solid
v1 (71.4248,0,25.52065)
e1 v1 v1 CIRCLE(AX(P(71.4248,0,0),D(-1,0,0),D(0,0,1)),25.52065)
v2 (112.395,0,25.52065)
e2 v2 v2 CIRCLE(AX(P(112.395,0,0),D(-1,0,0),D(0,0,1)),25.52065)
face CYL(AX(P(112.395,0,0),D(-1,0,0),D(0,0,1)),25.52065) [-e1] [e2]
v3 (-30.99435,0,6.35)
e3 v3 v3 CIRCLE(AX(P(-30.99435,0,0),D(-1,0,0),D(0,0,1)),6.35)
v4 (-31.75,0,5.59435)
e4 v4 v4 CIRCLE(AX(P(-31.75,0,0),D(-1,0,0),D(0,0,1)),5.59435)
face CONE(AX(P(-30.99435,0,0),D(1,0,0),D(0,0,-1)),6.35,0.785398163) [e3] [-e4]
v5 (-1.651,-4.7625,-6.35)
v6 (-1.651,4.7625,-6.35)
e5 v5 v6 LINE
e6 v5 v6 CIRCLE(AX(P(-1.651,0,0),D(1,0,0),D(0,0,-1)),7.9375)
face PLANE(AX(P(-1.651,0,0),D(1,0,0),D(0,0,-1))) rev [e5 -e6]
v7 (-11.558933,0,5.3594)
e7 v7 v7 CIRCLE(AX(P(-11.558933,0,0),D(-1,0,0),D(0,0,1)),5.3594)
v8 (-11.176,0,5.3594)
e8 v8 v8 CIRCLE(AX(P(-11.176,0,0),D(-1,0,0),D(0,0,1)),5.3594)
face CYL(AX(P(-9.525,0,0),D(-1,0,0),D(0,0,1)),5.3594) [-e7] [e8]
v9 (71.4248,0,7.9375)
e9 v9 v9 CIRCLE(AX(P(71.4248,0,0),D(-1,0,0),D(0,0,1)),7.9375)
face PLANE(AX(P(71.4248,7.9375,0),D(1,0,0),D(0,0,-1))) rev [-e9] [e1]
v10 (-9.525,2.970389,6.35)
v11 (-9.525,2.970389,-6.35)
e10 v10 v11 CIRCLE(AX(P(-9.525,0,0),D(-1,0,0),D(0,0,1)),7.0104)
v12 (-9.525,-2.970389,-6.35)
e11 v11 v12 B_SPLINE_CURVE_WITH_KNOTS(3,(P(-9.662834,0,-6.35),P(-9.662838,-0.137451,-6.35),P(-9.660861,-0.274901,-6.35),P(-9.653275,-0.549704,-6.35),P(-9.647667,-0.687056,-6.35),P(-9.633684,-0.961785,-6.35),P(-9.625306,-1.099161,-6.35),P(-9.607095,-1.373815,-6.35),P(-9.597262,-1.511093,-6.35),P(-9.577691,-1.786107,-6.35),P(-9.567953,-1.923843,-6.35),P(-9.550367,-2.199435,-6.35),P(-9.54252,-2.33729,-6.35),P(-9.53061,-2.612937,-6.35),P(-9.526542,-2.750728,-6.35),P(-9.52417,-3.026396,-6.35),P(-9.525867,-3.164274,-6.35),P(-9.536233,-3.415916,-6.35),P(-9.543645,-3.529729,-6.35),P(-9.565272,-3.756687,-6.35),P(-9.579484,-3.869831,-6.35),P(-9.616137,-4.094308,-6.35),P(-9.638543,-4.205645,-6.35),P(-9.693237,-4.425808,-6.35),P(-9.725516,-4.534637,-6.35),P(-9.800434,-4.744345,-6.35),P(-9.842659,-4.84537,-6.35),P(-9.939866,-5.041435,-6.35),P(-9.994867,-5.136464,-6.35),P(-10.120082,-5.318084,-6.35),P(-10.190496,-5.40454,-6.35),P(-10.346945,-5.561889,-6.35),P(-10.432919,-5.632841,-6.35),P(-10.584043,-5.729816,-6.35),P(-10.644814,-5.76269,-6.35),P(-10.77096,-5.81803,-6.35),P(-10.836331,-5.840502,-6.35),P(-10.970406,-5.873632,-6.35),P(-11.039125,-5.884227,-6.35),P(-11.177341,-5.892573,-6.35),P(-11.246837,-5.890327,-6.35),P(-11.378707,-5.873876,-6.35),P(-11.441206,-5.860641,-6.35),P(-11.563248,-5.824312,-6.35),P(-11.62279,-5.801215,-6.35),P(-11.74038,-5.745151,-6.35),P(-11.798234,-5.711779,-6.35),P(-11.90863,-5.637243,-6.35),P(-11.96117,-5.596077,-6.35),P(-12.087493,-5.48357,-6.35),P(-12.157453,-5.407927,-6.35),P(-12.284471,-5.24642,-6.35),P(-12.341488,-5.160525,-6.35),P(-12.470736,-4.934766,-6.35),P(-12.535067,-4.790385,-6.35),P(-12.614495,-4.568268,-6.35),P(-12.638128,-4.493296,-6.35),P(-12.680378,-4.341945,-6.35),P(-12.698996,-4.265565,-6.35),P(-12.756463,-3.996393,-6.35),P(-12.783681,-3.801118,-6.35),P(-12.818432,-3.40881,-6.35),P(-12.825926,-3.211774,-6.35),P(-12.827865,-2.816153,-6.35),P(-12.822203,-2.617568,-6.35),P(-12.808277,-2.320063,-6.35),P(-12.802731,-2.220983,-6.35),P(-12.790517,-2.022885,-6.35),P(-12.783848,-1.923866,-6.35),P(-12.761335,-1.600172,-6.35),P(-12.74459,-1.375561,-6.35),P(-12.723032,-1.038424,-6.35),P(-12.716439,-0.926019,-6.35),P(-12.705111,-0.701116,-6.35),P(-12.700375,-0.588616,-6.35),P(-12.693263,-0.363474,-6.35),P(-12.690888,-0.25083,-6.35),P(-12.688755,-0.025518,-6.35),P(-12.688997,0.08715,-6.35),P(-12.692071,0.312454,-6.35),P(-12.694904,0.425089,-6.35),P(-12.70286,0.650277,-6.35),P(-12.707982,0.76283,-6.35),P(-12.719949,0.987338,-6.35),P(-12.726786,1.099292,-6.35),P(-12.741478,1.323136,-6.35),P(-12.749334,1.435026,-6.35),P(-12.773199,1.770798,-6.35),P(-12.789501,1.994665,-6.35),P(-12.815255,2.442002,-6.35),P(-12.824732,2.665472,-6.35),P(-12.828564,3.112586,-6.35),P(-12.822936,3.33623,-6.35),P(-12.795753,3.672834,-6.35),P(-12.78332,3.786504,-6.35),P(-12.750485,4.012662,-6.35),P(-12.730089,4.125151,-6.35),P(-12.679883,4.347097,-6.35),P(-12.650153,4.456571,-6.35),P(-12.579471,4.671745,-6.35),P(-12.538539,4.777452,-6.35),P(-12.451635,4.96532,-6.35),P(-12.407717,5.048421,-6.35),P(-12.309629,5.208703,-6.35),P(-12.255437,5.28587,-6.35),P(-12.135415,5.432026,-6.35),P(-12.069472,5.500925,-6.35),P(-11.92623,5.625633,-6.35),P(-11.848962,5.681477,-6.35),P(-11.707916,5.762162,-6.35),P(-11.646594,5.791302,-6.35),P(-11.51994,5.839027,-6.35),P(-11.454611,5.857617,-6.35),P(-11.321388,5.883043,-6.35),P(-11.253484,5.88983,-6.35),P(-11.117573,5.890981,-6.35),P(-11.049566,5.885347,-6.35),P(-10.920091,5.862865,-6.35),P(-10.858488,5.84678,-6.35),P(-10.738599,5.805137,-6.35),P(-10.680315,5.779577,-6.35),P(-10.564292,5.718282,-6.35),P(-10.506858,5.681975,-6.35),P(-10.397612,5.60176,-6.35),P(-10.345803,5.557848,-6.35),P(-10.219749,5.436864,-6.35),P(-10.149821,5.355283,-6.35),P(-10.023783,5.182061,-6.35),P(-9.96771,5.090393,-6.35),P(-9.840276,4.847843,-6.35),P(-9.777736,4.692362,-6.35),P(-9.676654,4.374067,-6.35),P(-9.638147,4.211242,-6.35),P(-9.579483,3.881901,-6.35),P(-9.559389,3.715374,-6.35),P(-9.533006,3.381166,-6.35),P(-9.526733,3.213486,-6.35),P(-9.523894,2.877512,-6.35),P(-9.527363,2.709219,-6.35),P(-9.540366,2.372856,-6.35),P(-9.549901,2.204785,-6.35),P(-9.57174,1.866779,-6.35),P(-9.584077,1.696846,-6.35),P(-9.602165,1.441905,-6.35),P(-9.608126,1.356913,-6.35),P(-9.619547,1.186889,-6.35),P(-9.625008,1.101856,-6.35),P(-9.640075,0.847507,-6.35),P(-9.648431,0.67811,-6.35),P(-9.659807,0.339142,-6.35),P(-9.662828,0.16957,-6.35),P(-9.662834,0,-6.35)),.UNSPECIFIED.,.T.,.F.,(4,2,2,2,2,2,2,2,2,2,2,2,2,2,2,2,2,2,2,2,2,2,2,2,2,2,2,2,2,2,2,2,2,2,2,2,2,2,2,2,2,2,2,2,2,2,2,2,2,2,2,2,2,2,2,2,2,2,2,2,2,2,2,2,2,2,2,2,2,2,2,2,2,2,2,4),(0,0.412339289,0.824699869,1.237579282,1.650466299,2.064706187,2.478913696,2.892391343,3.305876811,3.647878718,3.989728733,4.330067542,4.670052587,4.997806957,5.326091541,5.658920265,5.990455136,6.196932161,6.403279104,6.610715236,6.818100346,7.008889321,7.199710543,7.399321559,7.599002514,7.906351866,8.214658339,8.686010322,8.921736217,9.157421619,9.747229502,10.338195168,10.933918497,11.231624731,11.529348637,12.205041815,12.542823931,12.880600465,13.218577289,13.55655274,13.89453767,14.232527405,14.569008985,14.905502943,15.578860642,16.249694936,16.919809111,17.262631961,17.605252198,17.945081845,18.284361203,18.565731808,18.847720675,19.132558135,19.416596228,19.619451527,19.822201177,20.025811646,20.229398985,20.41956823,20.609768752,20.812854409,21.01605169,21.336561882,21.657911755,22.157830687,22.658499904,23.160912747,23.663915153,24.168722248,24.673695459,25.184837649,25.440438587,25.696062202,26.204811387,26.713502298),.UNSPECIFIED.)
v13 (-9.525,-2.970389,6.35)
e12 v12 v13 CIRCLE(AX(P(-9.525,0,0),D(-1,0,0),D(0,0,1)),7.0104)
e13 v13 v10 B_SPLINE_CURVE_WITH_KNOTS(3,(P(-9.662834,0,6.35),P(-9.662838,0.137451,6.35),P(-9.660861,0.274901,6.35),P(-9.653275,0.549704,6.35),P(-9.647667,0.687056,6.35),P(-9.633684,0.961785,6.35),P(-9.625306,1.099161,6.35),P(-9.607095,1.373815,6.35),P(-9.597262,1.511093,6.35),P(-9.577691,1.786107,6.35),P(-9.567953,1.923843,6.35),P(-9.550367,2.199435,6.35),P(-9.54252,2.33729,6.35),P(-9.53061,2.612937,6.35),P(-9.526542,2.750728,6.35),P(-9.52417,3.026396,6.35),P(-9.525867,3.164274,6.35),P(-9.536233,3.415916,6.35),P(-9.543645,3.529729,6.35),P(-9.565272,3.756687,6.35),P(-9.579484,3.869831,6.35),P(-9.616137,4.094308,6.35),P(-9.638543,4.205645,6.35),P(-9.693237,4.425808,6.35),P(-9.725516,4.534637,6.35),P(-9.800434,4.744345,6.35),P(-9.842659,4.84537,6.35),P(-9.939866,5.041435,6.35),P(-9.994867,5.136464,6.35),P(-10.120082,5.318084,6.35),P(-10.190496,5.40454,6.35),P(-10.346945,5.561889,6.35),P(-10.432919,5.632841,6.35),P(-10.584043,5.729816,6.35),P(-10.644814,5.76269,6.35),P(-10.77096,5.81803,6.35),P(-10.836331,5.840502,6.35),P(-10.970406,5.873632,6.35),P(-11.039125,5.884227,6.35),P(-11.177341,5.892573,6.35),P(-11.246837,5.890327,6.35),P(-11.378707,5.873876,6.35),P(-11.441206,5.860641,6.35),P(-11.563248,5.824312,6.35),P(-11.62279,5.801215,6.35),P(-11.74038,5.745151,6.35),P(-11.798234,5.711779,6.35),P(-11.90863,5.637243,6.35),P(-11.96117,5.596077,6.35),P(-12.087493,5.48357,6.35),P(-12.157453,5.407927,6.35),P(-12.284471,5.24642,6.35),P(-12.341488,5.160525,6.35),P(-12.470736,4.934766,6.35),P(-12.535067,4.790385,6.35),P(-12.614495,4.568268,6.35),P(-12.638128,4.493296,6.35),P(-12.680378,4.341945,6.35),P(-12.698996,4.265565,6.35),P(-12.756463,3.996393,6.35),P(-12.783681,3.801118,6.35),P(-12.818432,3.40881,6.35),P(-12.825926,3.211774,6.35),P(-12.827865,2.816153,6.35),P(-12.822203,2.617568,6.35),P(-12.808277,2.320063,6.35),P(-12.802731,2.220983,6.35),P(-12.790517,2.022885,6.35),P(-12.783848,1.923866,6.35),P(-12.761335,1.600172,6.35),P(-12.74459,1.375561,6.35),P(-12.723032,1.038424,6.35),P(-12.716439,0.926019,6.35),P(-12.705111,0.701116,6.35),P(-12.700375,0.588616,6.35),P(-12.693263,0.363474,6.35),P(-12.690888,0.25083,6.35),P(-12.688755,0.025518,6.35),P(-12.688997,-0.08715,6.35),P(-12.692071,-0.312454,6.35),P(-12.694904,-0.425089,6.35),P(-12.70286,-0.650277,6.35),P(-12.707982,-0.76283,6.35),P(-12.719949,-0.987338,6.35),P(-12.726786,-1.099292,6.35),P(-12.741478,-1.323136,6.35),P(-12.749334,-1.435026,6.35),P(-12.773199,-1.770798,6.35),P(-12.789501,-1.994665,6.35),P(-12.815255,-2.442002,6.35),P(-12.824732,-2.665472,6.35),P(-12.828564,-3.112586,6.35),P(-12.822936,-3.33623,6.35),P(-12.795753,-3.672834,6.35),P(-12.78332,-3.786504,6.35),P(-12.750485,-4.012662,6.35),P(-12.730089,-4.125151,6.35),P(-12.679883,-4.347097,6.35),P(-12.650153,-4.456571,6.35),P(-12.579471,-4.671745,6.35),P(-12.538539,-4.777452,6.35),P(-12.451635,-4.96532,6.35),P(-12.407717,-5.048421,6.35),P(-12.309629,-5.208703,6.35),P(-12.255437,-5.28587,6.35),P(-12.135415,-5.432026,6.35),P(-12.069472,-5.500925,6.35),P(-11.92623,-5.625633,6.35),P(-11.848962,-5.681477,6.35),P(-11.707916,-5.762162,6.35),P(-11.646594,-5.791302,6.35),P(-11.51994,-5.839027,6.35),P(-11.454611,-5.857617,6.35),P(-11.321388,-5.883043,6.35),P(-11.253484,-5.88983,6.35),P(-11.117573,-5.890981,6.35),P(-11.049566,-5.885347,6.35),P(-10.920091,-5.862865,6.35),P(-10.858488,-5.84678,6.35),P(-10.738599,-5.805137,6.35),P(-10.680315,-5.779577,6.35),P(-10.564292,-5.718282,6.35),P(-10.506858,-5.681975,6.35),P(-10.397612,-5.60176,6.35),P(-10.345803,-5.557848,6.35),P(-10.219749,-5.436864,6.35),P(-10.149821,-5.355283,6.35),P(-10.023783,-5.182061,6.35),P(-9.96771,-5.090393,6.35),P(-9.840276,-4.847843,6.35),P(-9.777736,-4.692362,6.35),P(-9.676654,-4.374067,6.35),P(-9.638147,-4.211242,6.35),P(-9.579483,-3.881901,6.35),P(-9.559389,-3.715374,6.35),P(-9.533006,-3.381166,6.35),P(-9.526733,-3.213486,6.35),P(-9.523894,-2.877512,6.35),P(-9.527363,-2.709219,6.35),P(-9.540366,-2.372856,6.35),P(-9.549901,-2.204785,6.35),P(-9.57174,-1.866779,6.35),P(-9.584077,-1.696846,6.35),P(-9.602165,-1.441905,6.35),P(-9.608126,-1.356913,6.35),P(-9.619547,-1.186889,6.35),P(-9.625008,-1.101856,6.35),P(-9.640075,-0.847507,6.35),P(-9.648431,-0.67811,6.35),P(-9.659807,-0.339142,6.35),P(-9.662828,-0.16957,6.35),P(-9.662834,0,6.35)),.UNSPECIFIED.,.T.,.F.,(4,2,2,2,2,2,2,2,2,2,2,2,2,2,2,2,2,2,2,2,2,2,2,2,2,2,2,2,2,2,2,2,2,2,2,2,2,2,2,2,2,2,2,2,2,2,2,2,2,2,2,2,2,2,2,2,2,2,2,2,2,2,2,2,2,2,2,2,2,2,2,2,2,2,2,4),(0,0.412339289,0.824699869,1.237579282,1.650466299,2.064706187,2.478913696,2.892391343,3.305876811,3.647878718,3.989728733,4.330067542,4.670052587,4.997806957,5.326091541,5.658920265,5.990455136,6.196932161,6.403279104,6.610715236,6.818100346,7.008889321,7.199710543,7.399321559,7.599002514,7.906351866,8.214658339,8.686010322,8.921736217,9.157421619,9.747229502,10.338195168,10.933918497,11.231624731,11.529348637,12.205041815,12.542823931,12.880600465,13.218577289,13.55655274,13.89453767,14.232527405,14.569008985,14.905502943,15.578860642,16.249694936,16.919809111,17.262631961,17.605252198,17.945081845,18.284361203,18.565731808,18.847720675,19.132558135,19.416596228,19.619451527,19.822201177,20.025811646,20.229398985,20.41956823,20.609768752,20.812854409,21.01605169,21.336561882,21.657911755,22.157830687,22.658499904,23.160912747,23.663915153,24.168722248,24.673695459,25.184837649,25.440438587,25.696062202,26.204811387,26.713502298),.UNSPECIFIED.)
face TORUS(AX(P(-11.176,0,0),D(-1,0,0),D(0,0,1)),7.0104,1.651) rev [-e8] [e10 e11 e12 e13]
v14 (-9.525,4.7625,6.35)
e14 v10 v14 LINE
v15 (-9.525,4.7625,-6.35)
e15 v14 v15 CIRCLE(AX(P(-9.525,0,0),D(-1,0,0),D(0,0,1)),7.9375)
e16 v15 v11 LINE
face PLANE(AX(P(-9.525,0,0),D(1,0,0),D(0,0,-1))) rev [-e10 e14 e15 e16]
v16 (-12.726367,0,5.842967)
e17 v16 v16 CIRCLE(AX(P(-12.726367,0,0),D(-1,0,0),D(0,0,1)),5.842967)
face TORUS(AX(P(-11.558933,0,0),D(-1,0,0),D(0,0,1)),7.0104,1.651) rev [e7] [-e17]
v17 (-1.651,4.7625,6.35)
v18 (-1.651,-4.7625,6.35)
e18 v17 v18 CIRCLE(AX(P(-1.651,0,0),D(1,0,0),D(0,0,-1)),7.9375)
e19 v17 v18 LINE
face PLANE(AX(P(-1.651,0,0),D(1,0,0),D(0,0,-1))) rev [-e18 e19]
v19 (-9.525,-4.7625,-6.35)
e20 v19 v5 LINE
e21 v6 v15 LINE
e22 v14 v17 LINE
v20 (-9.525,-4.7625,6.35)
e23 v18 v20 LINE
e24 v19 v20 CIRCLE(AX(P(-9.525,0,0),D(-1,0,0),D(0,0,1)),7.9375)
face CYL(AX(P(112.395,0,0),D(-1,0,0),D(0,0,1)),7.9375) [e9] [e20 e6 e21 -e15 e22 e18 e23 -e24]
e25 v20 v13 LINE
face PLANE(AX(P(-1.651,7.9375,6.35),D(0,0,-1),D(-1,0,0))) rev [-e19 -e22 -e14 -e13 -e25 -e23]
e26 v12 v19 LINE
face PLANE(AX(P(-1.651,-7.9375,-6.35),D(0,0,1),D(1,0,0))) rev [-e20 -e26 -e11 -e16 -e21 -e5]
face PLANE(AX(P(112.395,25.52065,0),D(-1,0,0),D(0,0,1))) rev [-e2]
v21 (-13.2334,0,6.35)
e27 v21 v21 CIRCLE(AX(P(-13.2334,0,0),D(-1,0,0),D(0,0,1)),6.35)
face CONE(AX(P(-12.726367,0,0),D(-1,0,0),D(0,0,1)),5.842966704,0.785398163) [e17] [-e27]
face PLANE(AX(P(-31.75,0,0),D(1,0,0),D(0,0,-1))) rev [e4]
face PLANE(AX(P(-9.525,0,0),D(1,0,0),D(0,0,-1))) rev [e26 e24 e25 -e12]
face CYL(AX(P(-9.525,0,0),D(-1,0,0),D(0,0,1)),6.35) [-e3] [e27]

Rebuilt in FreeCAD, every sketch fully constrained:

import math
import FreeCAD as App
import Part
import Sketcher
Q = App.Units.Quantity


def add_polygon(sketch, points):
    """Adds a closed chain of lines whose ends are joined by coincident constraints."""
    first, n = sketch.GeometryCount, len(points)
    for a, b in zip(points, points[1:] + points[:1]):
        sketch.addGeometry(Part.LineSegment(App.Vector(*a, 0), App.Vector(*b, 0)), False)
    for i in range(n):
        sketch.addConstraint(Sketcher.Constraint("Coincident", first + i, 2, first + (i + 1) % n, 1))

doc = App.newDocument("Part")
body = doc.addObject("PartDesign::Body", "Body")

sketch1 = body.newObject("Sketcher::SketchObject", "Sketch")
sketch1.AttachmentSupport = (doc.getObject("XY_Plane"), [""])
sketch1.MapMode = "FlatFace"
add_polygon(sketch1, [(-10, 8), (-10, 0), (112, 0), (112, 26), (71, 26), (71, 8)])
sketch1.addConstraint(Sketcher.Constraint("Vertical", 0))
sketch1.addConstraint(Sketcher.Constraint("Horizontal", 1))
sketch1.addConstraint(Sketcher.Constraint("Vertical", 2))
sketch1.addConstraint(Sketcher.Constraint("Horizontal", 3))
sketch1.addConstraint(Sketcher.Constraint("Vertical", 4))
sketch1.addConstraint(Sketcher.Constraint("Horizontal", 5))
sketch1.addConstraint(Sketcher.Constraint("PointOnObject", 0, 2, -1))
sketch1.addConstraint(Sketcher.Constraint("DistanceX", 1, 1, 1, 2, Q("4.8 in")))
sketch1.addConstraint(Sketcher.Constraint("DistanceX", 3, 2, 3, 1, Q("1.613 in")))
sketch1.addConstraint(Sketcher.Constraint("DistanceY", 0, 2, 0, 1, Q("0.3125 in")))
sketch1.addConstraint(Sketcher.Constraint("DistanceX", 0, 2, -1, 1, Q("0.375 in")))
sketch1.addConstraint(Sketcher.Constraint("DistanceY", 2, 1, 2, 2, Q("25.52065 mm")))
revolution = body.newObject("PartDesign::Revolution", "Revolution")
revolution.Profile = sketch1
revolution.ReferenceAxis = (sketch1, ["H_Axis"])
revolution.Angle = 360

sketch2 = body.newObject("Sketcher::SketchObject", "Sketch001")
sketch2.AttachmentSupport = (doc.getObject("XY_Plane"), [""])
sketch2.MapMode = "FlatFace"
sketch2.addGeometry(Part.LineSegment(App.Vector(-31.75, 5.59, 0), App.Vector(-31.75, 0, 0)), False)
sketch2.addGeometry(Part.LineSegment(App.Vector(-31.75, 0, 0), App.Vector(-9.53, 0, 0)), False)
sketch2.addGeometry(Part.LineSegment(App.Vector(-9.53, 0, 0), App.Vector(-9.53, 7.01, 0)), False)
sketch2.addGeometry(Part.ArcOfCircle(Part.Circle(App.Vector(-11.18, 7.01, 0), App.Vector(0, 0, 1), 1.65), math.radians(-90), math.radians(0)), False)
sketch2.addGeometry(Part.LineSegment(App.Vector(-11.18, 5.36, 0), App.Vector(-11.56, 5.36, 0)), False)
sketch2.addGeometry(Part.ArcOfCircle(Part.Circle(App.Vector(-11.56, 7.01, 0), App.Vector(0, 0, 1), 1.65), math.radians(-135), math.radians(-90)), False)
sketch2.addGeometry(Part.LineSegment(App.Vector(-12.73, 5.84, 0), App.Vector(-13.23, 6.35, 0)), False)
sketch2.addGeometry(Part.LineSegment(App.Vector(-13.23, 6.35, 0), App.Vector(-30.99, 6.35, 0)), False)
sketch2.addGeometry(Part.LineSegment(App.Vector(-30.99, 6.35, 0), App.Vector(-31.75, 5.59, 0)), False)
sketch2.addConstraint(Sketcher.Constraint("Coincident", 0, 2, 1, 1))
sketch2.addConstraint(Sketcher.Constraint("Coincident", 1, 2, 2, 1))
sketch2.addConstraint(Sketcher.Constraint("Tangent", 2, 2, 3, 2))
sketch2.addConstraint(Sketcher.Constraint("Tangent", 3, 1, 4, 1))
sketch2.addConstraint(Sketcher.Constraint("Tangent", 4, 2, 5, 2))
sketch2.addConstraint(Sketcher.Constraint("Tangent", 5, 1, 6, 1))
sketch2.addConstraint(Sketcher.Constraint("Coincident", 6, 2, 7, 1))
sketch2.addConstraint(Sketcher.Constraint("Coincident", 7, 2, 8, 1))
sketch2.addConstraint(Sketcher.Constraint("Coincident", 8, 2, 0, 1))
sketch2.addConstraint(Sketcher.Constraint("Vertical", 0))
sketch2.addConstraint(Sketcher.Constraint("Horizontal", 1))
sketch2.addConstraint(Sketcher.Constraint("Vertical", 2))
sketch2.addConstraint(Sketcher.Constraint("Horizontal", 4))
sketch2.addConstraint(Sketcher.Constraint("Horizontal", 7))
sketch2.addConstraint(Sketcher.Constraint("Equal", 3, 5))
sketch2.addConstraint(Sketcher.Constraint("PointOnObject", 0, 2, -1))
sketch2.addConstraint(Sketcher.Constraint("Perpendicular", 6, 8))
sketch2.addConstraint(Sketcher.Constraint("Angle", 6, Q("135 deg")))
sketch2.addConstraint(Sketcher.Constraint("Radius", 3, Q("0.065 in")))
sketch2.addConstraint(Sketcher.Constraint("DistanceX", 1, 1, 1, 2, Q("0.875 in")))
sketch2.addConstraint(Sketcher.Constraint("DistanceY", 2, 1, 2, 2, Q("0.276 in")))
sketch2.addConstraint(Sketcher.Constraint("DistanceX", 3, 3, -1, 1, Q("0.44 in")))
sketch2.addConstraint(Sketcher.Constraint("DistanceY", -1, 1, 6, 2, Q("0.25 in")))
sketch2.addConstraint(Sketcher.Constraint("DistanceX", 6, 2, -1, 1, Q("0.521 in")))
sketch2.addConstraint(Sketcher.Constraint("DistanceX", 7, 2, 7, 1, Q("17.76095 mm")))
revolution2 = body.newObject("PartDesign::Revolution", "Revolution001")
revolution2.Profile = sketch2
revolution2.ReferenceAxis = (sketch2, ["H_Axis"])
revolution2.Angle = 360

sketch3 = body.newObject("Sketcher::SketchObject", "Sketch002")
sketch3.AttachmentSupport = (doc.getObject("YZ_Plane"), [""])
sketch3.MapMode = "FlatFace"
sketch3.AttachmentOffset = App.Placement(App.Vector(0, 0, -0.4 * 25.4), App.Rotation())
add_polygon(sketch3, [(16, 16), (-16, 16), (-16, -16), (16, -16)])
add_polygon(sketch3, [(-8, -6), (-8, 6), (8, 6), (8, -6)])
sketch3.addConstraint(Sketcher.Constraint("Horizontal", 0))
sketch3.addConstraint(Sketcher.Constraint("Vertical", 1))
sketch3.addConstraint(Sketcher.Constraint("Horizontal", 2))
sketch3.addConstraint(Sketcher.Constraint("Vertical", 3))
sketch3.addConstraint(Sketcher.Constraint("Vertical", 4))
sketch3.addConstraint(Sketcher.Constraint("Horizontal", 5))
sketch3.addConstraint(Sketcher.Constraint("Vertical", 6))
sketch3.addConstraint(Sketcher.Constraint("Horizontal", 7))
sketch3.addConstraint(Sketcher.Constraint("Symmetric", 0, 2, 2, 2, -1, 1))
sketch3.addConstraint(Sketcher.Constraint("Symmetric", 4, 2, 6, 2, -1, 1))
sketch3.addConstraint(Sketcher.Constraint("Equal", 2, 1))
sketch3.addConstraint(Sketcher.Constraint("DistanceY", 4, 1, 4, 2, Q("0.5 in")))
sketch3.addConstraint(Sketcher.Constraint("DistanceX", 0, 2, 0, 1, Q("1.25 in")))
sketch3.addConstraint(Sketcher.Constraint("DistanceX", 5, 1, 5, 2, Q("0.625 in")))
pocket1 = body.newObject("PartDesign::Pocket", "Pocket")
pocket1.Profile = sketch3
pocket1.Length = Q("0.335 in")
pocket1.Reversed = True

doc.recompute()
